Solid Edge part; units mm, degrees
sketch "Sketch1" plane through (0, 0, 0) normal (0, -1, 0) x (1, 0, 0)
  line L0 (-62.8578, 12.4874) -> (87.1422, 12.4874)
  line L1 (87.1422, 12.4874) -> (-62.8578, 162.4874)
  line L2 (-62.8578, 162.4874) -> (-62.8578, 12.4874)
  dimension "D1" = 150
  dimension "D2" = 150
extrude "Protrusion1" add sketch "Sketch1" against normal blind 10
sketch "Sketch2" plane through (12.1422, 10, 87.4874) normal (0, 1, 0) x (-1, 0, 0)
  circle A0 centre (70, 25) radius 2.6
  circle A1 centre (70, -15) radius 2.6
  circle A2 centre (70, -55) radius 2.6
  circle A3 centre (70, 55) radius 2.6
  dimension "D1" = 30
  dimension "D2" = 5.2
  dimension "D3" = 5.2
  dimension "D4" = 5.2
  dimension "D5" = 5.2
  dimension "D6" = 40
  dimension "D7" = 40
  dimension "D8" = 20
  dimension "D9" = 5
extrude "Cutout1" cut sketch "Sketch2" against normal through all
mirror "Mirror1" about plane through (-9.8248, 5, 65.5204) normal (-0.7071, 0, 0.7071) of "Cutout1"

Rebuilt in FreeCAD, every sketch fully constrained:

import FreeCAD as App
import Part
import Sketcher

V = App.Vector
Q = App.Units.Quantity


def add_polygon(sketch, points):
    """Adds a closed chain of lines whose ends are joined by coincident constraints."""
    first, n = sketch.GeometryCount, len(points)
    for a, b in zip(points, points[1:] + points[:1]):
        sketch.addGeometry(Part.LineSegment(App.Vector(*a, 0), App.Vector(*b, 0)), False)
    for i in range(n):
        sketch.addConstraint(Sketcher.Constraint("Coincident", first + i, 2, first + (i + 1) % n, 1))

doc = App.newDocument("Part")
body = doc.addObject("PartDesign::Body", "Body")

# Sketch on XZ plane
sketch1 = body.newObject("Sketcher::SketchObject", "Sketch")
sketch1.AttachmentSupport = (doc.getObject("XZ_Plane"), [""])
sketch1.MapMode = "FlatFace"
add_polygon(sketch1, [(-63, 162), (-63, 12), (87, 12)])  # lines 0-2
sketch1.addConstraint(Sketcher.Constraint("Vertical", 0))
sketch1.addConstraint(Sketcher.Constraint("Horizontal", 1))
sketch1.addConstraint(Sketcher.Constraint("Equal", 1, 0))
sketch1.addConstraint(Sketcher.Constraint("DistanceX", 1, 1, 1, 2, Q("150 mm")))
sketch1.addConstraint(Sketcher.Constraint("DistanceX", 0, 2, -1, 1, Q("62.8578 mm")))
sketch1.addConstraint(Sketcher.Constraint("DistanceY", -1, 1, 0, 2, Q("12.4874 mm")))
pad1 = body.newObject("PartDesign::Pad", "Pad")
pad1.Profile = sketch1
pad1.Length = 10
pad1.Reversed = True

# Sketch on XZ plane
sketch2 = body.newObject("Sketcher::SketchObject", "Sketch001")
sketch2.AttachmentSupport = (doc.getObject("XZ_Plane"), [""])
sketch2.MapMode = "FlatFace"
sketch2.AttachmentOffset = App.Placement(V(0, 0, -10), App.Rotation())
sketch2.addGeometry(Part.Circle(V(-57.9, 112.5, 0), V(0, 0, 1), 2.6), False)
sketch2.addGeometry(Part.Circle(V(-57.9, 72.5, 0), V(0, 0, 1), 2.6), False)
sketch2.addGeometry(Part.Circle(V(-57.9, 32.5, 0), V(0, 0, 1), 2.6), False)
sketch2.addGeometry(Part.Circle(V(-57.9, 142.5, 0), V(0, 0, 1), 2.6), False)
sketch2.addConstraint(Sketcher.Constraint("Equal", 0, 1))
sketch2.addConstraint(Sketcher.Constraint("Equal", 1, 2))
sketch2.addConstraint(Sketcher.Constraint("Equal", 2, 3))
sketch2.addConstraint(Sketcher.Constraint("Vertical", 0, 3, 1, 3))
sketch2.addConstraint(Sketcher.Constraint("Vertical", 1, 3, 2, 3))
sketch2.addConstraint(Sketcher.Constraint("Vertical", 2, 3, 3, 3))
sketch2.addConstraint(Sketcher.Constraint("DistanceY", 1, 3, 3, 3, Q("70 mm")))
sketch2.addConstraint(Sketcher.Constraint("Diameter", 0, Q("5.2 mm")))
sketch2.addConstraint(Sketcher.Constraint("DistanceY", 1, 3, 0, 3, Q("40 mm")))
sketch2.addConstraint(Sketcher.Constraint("DistanceY", 2, 3, 1, 3, Q("40 mm")))
sketch2.addConstraint(Sketcher.Constraint("DistanceX", 0, 3, -1, 1, Q("57.8578 mm")))
sketch2.addConstraint(Sketcher.Constraint("DistanceY", -1, 1, 0, 3, Q("112.4874 mm")))
pocket1 = body.newObject("PartDesign::Pocket", "Pocket")
pocket1.Profile = sketch2
pocket1.Type = "ThroughAll"
pocket1.Reversed = True
doc.recompute()

datumplane = body.newObject("PartDesign::Plane", "DatumPlane")
datumplane.Placement = App.Placement(V(-37.6726, 0, 37.6726), App.Rotation(V(-0.707106781, 0, -0.707106781), V(0, -1, 0), V(-0.707106781, 0, 0.707106781), "ZXY"))
mirrored = body.newObject("PartDesign::Mirrored", "Mirrored")
mirrored.Originals = [pocket1]
mirrored.MirrorPlane = (datumplane, [""])
body.Tip = mirrored

doc.recompute()
